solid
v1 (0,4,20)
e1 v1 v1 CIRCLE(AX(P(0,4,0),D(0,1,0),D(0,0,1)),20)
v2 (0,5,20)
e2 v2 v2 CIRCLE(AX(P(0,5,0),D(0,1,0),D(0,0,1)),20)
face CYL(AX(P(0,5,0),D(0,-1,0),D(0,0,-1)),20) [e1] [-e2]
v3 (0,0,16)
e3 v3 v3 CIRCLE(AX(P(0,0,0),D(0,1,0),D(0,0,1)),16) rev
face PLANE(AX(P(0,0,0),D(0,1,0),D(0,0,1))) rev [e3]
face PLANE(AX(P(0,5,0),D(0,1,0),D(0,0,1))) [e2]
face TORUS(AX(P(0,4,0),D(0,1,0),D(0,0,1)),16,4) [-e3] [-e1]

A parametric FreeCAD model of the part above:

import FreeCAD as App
import Part
import Sketcher

V = App.Vector


def edges_at(feature, points):
    """Names of the edges that pass closest to the given points."""
    edges = feature.Shape.Edges
    near = lambda p: min(range(len(edges)), key=lambda i: edges[i].distToShape(Part.Vertex(*p))[0])
    return sorted({f"Edge{near(p) + 1}" for p in points})

doc = App.newDocument("Part")
body = doc.addObject("PartDesign::Body", "Body")

sketch1 = body.newObject("Sketcher::SketchObject", "Sketch")
sketch1.AttachmentSupport = (doc.getObject("XZ_Plane"), [""])
sketch1.MapMode = "FlatFace"
sketch1.addGeometry(Part.Circle(V(0, 0, 0), V(0, 0, 1), 20), False)
sketch1.addConstraint([
    Sketcher.Constraint("Coincident", 0, 3, -1, 1),
    Sketcher.Constraint("Diameter", 0, 40.0),
])
pad1 = body.newObject("PartDesign::Pad", "Pad")
pad1.Profile = sketch1
pad1.Length = 5
pad1.Reversed = True
doc.recompute()

fillet = body.newObject("PartDesign::Fillet", "Fillet")
fillet.Base = (pad1, edges_at(pad1, [(-20, 0, 0)]))
fillet.Radius = 4

doc.recompute()
